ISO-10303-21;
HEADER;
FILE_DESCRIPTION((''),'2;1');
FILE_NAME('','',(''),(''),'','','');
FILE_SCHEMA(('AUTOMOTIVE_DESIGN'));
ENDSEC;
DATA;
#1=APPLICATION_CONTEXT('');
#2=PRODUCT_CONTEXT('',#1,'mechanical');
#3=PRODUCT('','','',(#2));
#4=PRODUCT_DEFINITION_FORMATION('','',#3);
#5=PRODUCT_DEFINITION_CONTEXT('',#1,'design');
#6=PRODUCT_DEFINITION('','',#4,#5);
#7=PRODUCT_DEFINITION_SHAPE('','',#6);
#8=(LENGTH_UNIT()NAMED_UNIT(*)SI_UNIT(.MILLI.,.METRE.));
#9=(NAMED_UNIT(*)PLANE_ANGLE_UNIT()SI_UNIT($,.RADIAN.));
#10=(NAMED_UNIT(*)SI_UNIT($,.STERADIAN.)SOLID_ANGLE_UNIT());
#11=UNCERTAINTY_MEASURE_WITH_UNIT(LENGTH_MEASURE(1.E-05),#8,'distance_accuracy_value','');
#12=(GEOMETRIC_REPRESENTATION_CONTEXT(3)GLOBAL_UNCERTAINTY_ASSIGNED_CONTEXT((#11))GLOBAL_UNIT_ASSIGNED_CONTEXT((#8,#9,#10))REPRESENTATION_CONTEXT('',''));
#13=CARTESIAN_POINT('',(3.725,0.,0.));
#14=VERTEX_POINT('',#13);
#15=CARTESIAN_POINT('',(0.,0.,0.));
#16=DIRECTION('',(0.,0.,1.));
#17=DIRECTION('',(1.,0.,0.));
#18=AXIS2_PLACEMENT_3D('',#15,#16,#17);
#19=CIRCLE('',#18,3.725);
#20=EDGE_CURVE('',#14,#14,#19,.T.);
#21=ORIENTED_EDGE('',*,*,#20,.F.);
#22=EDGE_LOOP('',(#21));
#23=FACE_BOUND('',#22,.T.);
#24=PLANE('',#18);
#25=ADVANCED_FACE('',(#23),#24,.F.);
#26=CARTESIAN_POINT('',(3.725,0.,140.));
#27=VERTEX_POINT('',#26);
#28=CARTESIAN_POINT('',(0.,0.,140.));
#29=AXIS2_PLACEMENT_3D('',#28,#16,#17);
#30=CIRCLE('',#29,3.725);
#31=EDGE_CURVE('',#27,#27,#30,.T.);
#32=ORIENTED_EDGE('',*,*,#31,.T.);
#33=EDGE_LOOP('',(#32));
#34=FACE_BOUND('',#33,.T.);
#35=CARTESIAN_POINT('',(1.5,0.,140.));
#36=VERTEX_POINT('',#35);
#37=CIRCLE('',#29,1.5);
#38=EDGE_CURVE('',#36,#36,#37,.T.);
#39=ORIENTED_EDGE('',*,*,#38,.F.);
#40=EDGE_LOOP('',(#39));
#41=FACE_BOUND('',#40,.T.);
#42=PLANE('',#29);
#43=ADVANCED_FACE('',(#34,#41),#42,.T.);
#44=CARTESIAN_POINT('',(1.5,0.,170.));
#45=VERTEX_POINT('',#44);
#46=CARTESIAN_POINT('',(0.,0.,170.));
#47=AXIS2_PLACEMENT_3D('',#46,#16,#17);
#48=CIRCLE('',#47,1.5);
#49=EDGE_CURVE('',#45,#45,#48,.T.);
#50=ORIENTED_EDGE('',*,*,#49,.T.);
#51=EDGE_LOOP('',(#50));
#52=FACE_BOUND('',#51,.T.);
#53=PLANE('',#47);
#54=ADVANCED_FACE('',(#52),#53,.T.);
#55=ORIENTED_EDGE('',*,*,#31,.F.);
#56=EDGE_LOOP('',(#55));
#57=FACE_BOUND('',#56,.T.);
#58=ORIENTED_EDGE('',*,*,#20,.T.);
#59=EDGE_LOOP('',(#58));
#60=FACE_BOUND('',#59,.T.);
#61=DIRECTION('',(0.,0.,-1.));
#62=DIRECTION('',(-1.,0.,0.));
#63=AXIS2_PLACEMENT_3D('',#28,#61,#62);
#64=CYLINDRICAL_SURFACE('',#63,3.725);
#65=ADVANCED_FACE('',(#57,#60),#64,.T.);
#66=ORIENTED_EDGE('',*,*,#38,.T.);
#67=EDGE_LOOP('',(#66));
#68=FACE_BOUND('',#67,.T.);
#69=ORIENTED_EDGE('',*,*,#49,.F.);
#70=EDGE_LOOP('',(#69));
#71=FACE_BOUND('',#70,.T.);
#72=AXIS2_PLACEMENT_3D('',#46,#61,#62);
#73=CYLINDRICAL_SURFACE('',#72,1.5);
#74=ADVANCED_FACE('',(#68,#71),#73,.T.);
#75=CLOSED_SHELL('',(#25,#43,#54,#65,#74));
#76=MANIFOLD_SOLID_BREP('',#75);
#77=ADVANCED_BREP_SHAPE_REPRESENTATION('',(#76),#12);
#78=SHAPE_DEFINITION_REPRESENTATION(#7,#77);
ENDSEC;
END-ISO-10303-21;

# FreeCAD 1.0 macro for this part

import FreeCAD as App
import Part
import Sketcher
Q = App.Units.Quantity

doc = App.newDocument("Part")
body = doc.addObject("PartDesign::Body", "Body")

sketch1 = doc.addObject("Sketcher::SketchObject", "Sketch")
body.addObject(sketch1)
sketch1.AttachmentSupport = (doc.XY_Plane, [""])
sketch1.MapMode = "FlatFace"
sketch1.addGeometry(Part.Circle(App.Vector(0, 0, 0), App.Vector(0, 0, 1), 3.725), False)
sketch1.addConstraint([
    Sketcher.Constraint("Coincident", 0, 3, -1, 1),
    Sketcher.Constraint("Diameter", 0, Q("7.45 mm")),
])
pad1 = doc.addObject("PartDesign::Pad", "Pad")
body.addObject(pad1)
pad1.Profile = sketch1
pad1.Length = 140

sketch2 = doc.addObject("Sketcher::SketchObject", "Sketch001")
body.addObject(sketch2)
sketch2.AttachmentSupport = (doc.XY_Plane, [""])
sketch2.MapMode = "FlatFace"
sketch2.AttachmentOffset = App.Placement(App.Vector(0, 0, 140), App.Rotation())
sketch2.addGeometry(Part.Circle(App.Vector(0, 0, 0), App.Vector(0, 0, 1), 1.5), False)
sketch2.addConstraint([
    Sketcher.Constraint("Coincident", 0, 3, -1, 1),
    Sketcher.Constraint("Diameter", 0, Q("3 mm")),
])
pad2 = doc.addObject("PartDesign::Pad", "Pad001")
body.addObject(pad2)
pad2.Profile = sketch2
pad2.Length = 30

doc.recompute()
